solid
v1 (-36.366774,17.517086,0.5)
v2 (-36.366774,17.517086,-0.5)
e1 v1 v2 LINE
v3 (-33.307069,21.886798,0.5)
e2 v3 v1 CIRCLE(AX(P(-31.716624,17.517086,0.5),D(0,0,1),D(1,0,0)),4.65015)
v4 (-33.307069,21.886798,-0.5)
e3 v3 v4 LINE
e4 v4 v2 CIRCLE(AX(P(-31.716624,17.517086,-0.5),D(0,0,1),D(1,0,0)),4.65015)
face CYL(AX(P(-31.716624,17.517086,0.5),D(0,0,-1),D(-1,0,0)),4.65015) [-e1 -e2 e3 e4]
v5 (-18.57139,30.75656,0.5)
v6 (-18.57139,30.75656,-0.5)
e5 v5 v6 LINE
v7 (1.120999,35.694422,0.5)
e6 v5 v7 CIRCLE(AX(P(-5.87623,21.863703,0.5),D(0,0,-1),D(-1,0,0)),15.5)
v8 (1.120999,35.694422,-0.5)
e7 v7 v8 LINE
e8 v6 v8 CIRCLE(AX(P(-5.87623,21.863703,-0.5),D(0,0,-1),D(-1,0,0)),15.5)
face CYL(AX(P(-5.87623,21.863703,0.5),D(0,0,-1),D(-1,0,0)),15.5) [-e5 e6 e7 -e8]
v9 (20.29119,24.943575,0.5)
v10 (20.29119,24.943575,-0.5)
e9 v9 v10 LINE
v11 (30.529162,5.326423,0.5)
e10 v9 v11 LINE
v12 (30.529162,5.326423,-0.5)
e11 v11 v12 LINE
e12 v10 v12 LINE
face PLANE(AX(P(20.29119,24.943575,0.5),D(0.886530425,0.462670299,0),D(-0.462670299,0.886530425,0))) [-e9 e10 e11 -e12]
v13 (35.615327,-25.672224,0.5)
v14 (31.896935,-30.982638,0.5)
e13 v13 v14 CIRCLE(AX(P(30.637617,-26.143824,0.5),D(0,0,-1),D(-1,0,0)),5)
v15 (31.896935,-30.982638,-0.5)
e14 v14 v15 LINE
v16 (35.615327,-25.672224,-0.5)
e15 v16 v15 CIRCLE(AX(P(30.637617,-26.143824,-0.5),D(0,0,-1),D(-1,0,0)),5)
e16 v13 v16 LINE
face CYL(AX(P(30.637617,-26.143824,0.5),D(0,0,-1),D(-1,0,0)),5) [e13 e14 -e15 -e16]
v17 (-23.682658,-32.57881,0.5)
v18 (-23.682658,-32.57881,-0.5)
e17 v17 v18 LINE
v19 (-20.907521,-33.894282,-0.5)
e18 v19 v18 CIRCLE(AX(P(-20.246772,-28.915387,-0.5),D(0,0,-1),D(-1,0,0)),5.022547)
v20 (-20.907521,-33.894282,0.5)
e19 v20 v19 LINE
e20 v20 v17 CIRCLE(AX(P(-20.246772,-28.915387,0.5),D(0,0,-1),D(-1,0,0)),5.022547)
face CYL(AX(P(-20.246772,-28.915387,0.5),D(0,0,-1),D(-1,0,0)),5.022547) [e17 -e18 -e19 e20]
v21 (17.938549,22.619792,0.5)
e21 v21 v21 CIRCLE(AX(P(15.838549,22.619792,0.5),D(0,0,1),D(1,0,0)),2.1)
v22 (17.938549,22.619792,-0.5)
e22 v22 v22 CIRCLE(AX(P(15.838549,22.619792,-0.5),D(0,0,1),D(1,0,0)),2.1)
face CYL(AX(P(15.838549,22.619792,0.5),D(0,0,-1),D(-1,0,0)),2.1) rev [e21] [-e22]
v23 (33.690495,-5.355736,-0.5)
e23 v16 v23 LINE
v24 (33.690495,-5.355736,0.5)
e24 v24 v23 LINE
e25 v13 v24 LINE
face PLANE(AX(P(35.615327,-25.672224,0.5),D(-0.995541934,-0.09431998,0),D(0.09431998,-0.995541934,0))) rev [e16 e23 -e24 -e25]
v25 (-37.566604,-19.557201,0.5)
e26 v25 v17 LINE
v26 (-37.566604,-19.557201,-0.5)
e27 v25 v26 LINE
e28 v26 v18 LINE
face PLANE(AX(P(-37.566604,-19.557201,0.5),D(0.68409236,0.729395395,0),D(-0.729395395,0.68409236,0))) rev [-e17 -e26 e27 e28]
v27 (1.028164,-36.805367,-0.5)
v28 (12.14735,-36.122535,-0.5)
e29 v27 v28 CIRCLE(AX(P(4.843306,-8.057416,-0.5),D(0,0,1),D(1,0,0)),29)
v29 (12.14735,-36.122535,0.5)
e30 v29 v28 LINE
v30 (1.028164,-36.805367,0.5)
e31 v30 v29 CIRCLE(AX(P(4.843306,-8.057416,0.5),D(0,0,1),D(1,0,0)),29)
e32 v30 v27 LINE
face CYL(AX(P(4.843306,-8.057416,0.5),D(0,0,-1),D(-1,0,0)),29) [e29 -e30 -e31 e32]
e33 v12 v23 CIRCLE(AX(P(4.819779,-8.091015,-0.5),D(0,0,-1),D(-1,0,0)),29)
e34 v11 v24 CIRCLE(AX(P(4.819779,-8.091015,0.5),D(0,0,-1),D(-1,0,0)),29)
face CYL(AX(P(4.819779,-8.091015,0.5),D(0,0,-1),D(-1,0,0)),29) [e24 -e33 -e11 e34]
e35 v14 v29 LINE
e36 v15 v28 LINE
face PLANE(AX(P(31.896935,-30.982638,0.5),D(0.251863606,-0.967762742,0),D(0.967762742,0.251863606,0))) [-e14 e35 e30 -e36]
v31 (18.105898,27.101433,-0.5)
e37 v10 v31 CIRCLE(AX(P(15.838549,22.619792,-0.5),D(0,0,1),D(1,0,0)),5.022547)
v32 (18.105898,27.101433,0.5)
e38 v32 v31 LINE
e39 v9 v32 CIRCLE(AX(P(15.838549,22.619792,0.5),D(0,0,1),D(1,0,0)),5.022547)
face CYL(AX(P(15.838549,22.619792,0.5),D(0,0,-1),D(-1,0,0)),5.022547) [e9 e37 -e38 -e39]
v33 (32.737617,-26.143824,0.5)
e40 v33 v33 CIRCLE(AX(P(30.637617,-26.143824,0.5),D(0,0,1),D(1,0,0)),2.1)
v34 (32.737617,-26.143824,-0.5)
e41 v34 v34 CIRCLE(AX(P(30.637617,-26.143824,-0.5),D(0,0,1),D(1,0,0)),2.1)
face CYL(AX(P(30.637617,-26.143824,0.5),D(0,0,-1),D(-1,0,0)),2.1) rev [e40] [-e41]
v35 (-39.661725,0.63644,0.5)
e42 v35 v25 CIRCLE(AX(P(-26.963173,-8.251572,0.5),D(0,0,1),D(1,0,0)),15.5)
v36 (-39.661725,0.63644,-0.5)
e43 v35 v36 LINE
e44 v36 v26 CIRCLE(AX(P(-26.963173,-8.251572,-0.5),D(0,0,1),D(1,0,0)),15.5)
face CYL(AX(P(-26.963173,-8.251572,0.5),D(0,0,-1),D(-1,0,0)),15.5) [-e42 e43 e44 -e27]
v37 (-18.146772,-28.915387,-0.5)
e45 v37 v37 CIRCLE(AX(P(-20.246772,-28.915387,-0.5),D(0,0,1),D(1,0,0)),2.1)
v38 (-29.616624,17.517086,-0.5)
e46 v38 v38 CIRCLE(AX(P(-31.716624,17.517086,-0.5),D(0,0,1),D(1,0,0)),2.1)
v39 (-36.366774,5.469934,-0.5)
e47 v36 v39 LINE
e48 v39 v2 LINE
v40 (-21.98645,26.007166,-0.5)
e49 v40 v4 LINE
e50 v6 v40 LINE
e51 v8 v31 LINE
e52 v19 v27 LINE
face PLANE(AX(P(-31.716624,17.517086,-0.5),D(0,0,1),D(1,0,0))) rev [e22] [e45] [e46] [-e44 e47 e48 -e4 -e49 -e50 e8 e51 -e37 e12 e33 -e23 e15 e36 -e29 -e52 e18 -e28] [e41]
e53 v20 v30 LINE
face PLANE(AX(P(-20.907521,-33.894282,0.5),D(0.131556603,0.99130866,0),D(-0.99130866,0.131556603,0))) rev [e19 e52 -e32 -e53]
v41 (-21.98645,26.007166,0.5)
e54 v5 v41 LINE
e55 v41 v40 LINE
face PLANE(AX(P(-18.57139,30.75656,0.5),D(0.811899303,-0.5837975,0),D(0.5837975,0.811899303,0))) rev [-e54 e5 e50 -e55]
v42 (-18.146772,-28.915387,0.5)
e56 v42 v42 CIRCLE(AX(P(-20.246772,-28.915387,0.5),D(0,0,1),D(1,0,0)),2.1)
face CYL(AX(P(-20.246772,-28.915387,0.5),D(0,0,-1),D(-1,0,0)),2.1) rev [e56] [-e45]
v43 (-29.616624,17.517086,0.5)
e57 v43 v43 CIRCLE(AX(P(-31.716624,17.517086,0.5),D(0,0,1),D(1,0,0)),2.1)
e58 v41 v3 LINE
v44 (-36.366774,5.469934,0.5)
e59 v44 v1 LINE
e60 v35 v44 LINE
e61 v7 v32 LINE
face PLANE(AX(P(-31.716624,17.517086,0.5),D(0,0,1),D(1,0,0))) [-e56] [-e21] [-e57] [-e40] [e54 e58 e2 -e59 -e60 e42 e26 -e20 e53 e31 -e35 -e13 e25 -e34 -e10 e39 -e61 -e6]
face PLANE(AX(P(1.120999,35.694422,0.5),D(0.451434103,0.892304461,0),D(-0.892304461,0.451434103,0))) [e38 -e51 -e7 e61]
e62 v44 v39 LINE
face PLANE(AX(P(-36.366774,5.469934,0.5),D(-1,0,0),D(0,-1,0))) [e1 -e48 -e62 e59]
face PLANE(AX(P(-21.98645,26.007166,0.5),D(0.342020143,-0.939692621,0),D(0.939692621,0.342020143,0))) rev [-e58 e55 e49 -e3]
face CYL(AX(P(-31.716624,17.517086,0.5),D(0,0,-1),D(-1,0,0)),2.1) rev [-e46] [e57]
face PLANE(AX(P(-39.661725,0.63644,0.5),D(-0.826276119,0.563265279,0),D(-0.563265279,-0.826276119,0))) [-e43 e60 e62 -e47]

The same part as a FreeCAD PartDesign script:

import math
import FreeCAD as App
import Part
import Sketcher
from FreeCAD import Vector
Q = App.Units.Quantity

doc = App.newDocument("Part")
params = doc.addObject("Spreadsheet::Sheet", "Params")
for row, (alias, value) in enumerate([
    ("sketch1_radius", "29 mm"),
    ("sketch1_radius2", "5 mm"),
    ("sketch1_diameter", "4.2 mm"),
    ("sketch1_radius3", "15.5 mm"),
    ("pad1_length", "1 mm"),
], start=1):
    params.set(f"A{row}", alias)
    params.set(f"B{row}", "=" + value)
    params.setAlias(f"B{row}", alias)

body = doc.addObject("PartDesign::Body", "Body")

# Sketch on XY plane
sketch1 = body.newObject("Sketcher::SketchObject", "Sketch")
sketch1.AttachmentSupport = (doc.getObject("XY_Plane"), [""])
sketch1.MapMode = "FlatFace"
sketch1.addGeometry([
    Part.LineSegment(Vector(35.6, -25.7, 0), Vector(33.7, -5.4, 0)),  # 0
    Part.ArcOfCircle(Part.Circle(Vector(4.8, -8.1, 0), Vector(0, 0, 1), 29), math.radians(5), math.radians(28)),  # 1
    Part.LineSegment(Vector(30.5, 5.3, 0), Vector(20.3, 24.9, 0)),  # 2
    Part.ArcOfCircle(Part.Circle(Vector(15.8, 22.6, 0), Vector(0, 0, 1), 5), math.radians(28), math.radians(63)),  # 3
    Part.LineSegment(Vector(18.1, 27.1, 0), Vector(1.1, 35.7, 0)),  # 4
    Part.ArcOfCircle(Part.Circle(Vector(-5.9, 21.9, 0), Vector(0, 0, 1), 15.5), math.radians(63), math.radians(145)),  # 5
    Part.LineSegment(Vector(-18.6, 30.8, 0), Vector(-22, 26, 0)),  # 6
    Part.LineSegment(Vector(-22, 26, 0), Vector(-33.3, 21.9, 0)),  # 7
    Part.ArcOfCircle(Part.Circle(Vector(-31.7, 17.5, 0), Vector(0, 0, 1), 4.7), math.radians(110), math.radians(180)),  # 8
    Part.LineSegment(Vector(-36.4, 17.5, 0), Vector(-36.4, 5.5, 0)),  # 9
    Part.LineSegment(Vector(-36.4, 5.5, 0), Vector(-39.7, 0.6, 0)),  # 10
    Part.ArcOfCircle(Part.Circle(Vector(-27, -8.3, 0), Vector(0, 0, 1), 15.5), math.radians(145), math.radians(227)),  # 11
    Part.LineSegment(Vector(-37.6, -19.6, 0), Vector(-23.7, -32.6, 0)),  # 12
    Part.ArcOfCircle(Part.Circle(Vector(-20.2, -28.9, 0), Vector(0, 0, 1), 5), math.radians(-133), math.radians(-98)),  # 13
    Part.LineSegment(Vector(-20.9, -33.9, 0), Vector(1, -36.8, 0)),  # 14
    Part.ArcOfCircle(Part.Circle(Vector(4.8, -8.1, 0), Vector(0, 0, 1), 29), math.radians(-98), math.radians(-75)),  # 15
    Part.LineSegment(Vector(12.1, -36.1, 0), Vector(31.9, -31, 0)),  # 16
    Part.ArcOfCircle(Part.Circle(Vector(30.6, -26.1, 0), Vector(0, 0, 1), 5), math.radians(-75), math.radians(5)),  # 17
    Part.Circle(Vector(-20.2, -28.9, 0), Vector(0, 0, 1), 2.1),  # 18
    Part.Circle(Vector(30.6, -26.1, 0), Vector(0, 0, 1), 2.1),  # 19
    Part.Circle(Vector(-31.7, 17.5, 0), Vector(0, 0, 1), 2.1),  # 20
    Part.Circle(Vector(15.8, 22.6, 0), Vector(0, 0, 1), 2.1),  # 21
], False)
sketch1.addConstraint([
    Sketcher.Constraint("Tangent", 0, 2, 1, 1),
    Sketcher.Constraint("Tangent", 1, 2, 2, 1),
    Sketcher.Constraint("Tangent", 2, 2, 3, 1),
    Sketcher.Constraint("Tangent", 3, 2, 4, 1),
    Sketcher.Constraint("Tangent", 4, 2, 5, 1),
    Sketcher.Constraint("Coincident", 5, 2, 6, 1),
    Sketcher.Constraint("Coincident", 6, 2, 7, 1),
    Sketcher.Constraint("Tangent", 7, 2, 8, 1),
    Sketcher.Constraint("Tangent", 8, 2, 9, 1),
    Sketcher.Constraint("Coincident", 9, 2, 10, 1),
    Sketcher.Constraint("Coincident", 10, 2, 11, 1),
    Sketcher.Constraint("Tangent", 11, 2, 12, 1),
    Sketcher.Constraint("Tangent", 12, 2, 13, 1),
    Sketcher.Constraint("Tangent", 13, 2, 14, 1),
    Sketcher.Constraint("Tangent", 14, 2, 15, 1),
    Sketcher.Constraint("Tangent", 15, 2, 16, 1),
    Sketcher.Constraint("Tangent", 16, 2, 17, 1),
    Sketcher.Constraint("Tangent", 17, 2, 0, 1),
    Sketcher.Constraint("Vertical", 9),
    Sketcher.Constraint("Coincident", 18, 3, 13, 3),
    Sketcher.Constraint("Coincident", 19, 3, 17, 3),
    Sketcher.Constraint("Coincident", 20, 3, 8, 3),
    Sketcher.Constraint("Coincident", 21, 3, 3, 3),
    Sketcher.Constraint("Equal", 5, 11),
    Sketcher.Constraint("Equal", 3, 13),
    Sketcher.Constraint("Equal", 1, 15),
    Sketcher.Constraint("Equal", 18, 19),
    Sketcher.Constraint("Equal", 19, 20),
    Sketcher.Constraint("Equal", 20, 21),
    Sketcher.Constraint("Equal", 6, 10),
    Sketcher.Constraint("Equal", 4, 12),
    Sketcher.Constraint("Equal", 2, 14),
    Sketcher.Constraint("Equal", 0, 16),
    Sketcher.Constraint("Radius", 1, Q("29 mm")),
    Sketcher.Constraint("Radius", 17, Q("5 mm")),
    Sketcher.Constraint("Diameter", 18, Q("4.2 mm")),
    Sketcher.Constraint("Radius", 5, Q("15.5 mm")),
    Sketcher.Constraint("Angle", 7, Q("-160 deg")),
    Sketcher.Constraint("Radius", 8, Q("4.65015 mm")),
    Sketcher.Constraint("DistanceX", -1, 1, 4, 2, Q("1.120999 mm")),
    Sketcher.Constraint("Radius", 3, Q("5.022547 mm")),
    Sketcher.Constraint("DistanceY", 9, 2, 9, 1, Q("12.047152 mm")),
    Sketcher.Constraint("DistanceY", 11, 2, -1, 1, Q("19.557201 mm")),
    Sketcher.Constraint("DistanceY", 1, 3, 8, 3, Q("25.608102 mm")),
    Sketcher.Constraint("DistanceX", 11, 3, 13, 3, Q("6.716401 mm")),
    Sketcher.Constraint("DistanceY", 1, 3, 15, 3, Q("0.0336 mm")),
    Sketcher.Constraint("DistanceX", 4, 2, 3, 2, Q("16.984899 mm")),
    Sketcher.Constraint("DistanceX", 9, 2, 11, 3, Q("9.403601 mm")),
    Sketcher.Constraint("DistanceX", 10, 2, 20, 3, Q("7.945101 mm")),
    Sketcher.Constraint("DistanceY", 16, 2, 0, 2, Q("25.626901 mm")),
    Sketcher.Constraint("DistanceY", 17, 3, 17, 2, Q("0.4716 mm")),
    Sketcher.Constraint("Distance", 4, Q("19.03487 mm")),
    Sketcher.Constraint("Distance", 7, Q("12.047152 mm")),
    Sketcher.Constraint("DistanceX", -1, 1, 1, 3, Q("4.819779 mm")),
    Sketcher.Constraint("DistanceY", -1, 1, 3, 3, Q("22.619792 mm")),
    Sketcher.Constraint("DistanceX", 13, 3, -1, 1, Q("20.246772 mm")),
])
sketch1.setExpression("Constraints[33]", "Params.sketch1_radius")
sketch1.setExpression("Constraints[34]", "Params.sketch1_radius2")
sketch1.setExpression("Constraints[35]", "Params.sketch1_diameter")
sketch1.setExpression("Constraints[36]", "Params.sketch1_radius3")
pad1 = body.newObject("PartDesign::Pad", "Pad")
pad1.Profile = sketch1
pad1.setExpression("Length", "Params.pad1_length")
pad1.Midplane = True

doc.recompute()
